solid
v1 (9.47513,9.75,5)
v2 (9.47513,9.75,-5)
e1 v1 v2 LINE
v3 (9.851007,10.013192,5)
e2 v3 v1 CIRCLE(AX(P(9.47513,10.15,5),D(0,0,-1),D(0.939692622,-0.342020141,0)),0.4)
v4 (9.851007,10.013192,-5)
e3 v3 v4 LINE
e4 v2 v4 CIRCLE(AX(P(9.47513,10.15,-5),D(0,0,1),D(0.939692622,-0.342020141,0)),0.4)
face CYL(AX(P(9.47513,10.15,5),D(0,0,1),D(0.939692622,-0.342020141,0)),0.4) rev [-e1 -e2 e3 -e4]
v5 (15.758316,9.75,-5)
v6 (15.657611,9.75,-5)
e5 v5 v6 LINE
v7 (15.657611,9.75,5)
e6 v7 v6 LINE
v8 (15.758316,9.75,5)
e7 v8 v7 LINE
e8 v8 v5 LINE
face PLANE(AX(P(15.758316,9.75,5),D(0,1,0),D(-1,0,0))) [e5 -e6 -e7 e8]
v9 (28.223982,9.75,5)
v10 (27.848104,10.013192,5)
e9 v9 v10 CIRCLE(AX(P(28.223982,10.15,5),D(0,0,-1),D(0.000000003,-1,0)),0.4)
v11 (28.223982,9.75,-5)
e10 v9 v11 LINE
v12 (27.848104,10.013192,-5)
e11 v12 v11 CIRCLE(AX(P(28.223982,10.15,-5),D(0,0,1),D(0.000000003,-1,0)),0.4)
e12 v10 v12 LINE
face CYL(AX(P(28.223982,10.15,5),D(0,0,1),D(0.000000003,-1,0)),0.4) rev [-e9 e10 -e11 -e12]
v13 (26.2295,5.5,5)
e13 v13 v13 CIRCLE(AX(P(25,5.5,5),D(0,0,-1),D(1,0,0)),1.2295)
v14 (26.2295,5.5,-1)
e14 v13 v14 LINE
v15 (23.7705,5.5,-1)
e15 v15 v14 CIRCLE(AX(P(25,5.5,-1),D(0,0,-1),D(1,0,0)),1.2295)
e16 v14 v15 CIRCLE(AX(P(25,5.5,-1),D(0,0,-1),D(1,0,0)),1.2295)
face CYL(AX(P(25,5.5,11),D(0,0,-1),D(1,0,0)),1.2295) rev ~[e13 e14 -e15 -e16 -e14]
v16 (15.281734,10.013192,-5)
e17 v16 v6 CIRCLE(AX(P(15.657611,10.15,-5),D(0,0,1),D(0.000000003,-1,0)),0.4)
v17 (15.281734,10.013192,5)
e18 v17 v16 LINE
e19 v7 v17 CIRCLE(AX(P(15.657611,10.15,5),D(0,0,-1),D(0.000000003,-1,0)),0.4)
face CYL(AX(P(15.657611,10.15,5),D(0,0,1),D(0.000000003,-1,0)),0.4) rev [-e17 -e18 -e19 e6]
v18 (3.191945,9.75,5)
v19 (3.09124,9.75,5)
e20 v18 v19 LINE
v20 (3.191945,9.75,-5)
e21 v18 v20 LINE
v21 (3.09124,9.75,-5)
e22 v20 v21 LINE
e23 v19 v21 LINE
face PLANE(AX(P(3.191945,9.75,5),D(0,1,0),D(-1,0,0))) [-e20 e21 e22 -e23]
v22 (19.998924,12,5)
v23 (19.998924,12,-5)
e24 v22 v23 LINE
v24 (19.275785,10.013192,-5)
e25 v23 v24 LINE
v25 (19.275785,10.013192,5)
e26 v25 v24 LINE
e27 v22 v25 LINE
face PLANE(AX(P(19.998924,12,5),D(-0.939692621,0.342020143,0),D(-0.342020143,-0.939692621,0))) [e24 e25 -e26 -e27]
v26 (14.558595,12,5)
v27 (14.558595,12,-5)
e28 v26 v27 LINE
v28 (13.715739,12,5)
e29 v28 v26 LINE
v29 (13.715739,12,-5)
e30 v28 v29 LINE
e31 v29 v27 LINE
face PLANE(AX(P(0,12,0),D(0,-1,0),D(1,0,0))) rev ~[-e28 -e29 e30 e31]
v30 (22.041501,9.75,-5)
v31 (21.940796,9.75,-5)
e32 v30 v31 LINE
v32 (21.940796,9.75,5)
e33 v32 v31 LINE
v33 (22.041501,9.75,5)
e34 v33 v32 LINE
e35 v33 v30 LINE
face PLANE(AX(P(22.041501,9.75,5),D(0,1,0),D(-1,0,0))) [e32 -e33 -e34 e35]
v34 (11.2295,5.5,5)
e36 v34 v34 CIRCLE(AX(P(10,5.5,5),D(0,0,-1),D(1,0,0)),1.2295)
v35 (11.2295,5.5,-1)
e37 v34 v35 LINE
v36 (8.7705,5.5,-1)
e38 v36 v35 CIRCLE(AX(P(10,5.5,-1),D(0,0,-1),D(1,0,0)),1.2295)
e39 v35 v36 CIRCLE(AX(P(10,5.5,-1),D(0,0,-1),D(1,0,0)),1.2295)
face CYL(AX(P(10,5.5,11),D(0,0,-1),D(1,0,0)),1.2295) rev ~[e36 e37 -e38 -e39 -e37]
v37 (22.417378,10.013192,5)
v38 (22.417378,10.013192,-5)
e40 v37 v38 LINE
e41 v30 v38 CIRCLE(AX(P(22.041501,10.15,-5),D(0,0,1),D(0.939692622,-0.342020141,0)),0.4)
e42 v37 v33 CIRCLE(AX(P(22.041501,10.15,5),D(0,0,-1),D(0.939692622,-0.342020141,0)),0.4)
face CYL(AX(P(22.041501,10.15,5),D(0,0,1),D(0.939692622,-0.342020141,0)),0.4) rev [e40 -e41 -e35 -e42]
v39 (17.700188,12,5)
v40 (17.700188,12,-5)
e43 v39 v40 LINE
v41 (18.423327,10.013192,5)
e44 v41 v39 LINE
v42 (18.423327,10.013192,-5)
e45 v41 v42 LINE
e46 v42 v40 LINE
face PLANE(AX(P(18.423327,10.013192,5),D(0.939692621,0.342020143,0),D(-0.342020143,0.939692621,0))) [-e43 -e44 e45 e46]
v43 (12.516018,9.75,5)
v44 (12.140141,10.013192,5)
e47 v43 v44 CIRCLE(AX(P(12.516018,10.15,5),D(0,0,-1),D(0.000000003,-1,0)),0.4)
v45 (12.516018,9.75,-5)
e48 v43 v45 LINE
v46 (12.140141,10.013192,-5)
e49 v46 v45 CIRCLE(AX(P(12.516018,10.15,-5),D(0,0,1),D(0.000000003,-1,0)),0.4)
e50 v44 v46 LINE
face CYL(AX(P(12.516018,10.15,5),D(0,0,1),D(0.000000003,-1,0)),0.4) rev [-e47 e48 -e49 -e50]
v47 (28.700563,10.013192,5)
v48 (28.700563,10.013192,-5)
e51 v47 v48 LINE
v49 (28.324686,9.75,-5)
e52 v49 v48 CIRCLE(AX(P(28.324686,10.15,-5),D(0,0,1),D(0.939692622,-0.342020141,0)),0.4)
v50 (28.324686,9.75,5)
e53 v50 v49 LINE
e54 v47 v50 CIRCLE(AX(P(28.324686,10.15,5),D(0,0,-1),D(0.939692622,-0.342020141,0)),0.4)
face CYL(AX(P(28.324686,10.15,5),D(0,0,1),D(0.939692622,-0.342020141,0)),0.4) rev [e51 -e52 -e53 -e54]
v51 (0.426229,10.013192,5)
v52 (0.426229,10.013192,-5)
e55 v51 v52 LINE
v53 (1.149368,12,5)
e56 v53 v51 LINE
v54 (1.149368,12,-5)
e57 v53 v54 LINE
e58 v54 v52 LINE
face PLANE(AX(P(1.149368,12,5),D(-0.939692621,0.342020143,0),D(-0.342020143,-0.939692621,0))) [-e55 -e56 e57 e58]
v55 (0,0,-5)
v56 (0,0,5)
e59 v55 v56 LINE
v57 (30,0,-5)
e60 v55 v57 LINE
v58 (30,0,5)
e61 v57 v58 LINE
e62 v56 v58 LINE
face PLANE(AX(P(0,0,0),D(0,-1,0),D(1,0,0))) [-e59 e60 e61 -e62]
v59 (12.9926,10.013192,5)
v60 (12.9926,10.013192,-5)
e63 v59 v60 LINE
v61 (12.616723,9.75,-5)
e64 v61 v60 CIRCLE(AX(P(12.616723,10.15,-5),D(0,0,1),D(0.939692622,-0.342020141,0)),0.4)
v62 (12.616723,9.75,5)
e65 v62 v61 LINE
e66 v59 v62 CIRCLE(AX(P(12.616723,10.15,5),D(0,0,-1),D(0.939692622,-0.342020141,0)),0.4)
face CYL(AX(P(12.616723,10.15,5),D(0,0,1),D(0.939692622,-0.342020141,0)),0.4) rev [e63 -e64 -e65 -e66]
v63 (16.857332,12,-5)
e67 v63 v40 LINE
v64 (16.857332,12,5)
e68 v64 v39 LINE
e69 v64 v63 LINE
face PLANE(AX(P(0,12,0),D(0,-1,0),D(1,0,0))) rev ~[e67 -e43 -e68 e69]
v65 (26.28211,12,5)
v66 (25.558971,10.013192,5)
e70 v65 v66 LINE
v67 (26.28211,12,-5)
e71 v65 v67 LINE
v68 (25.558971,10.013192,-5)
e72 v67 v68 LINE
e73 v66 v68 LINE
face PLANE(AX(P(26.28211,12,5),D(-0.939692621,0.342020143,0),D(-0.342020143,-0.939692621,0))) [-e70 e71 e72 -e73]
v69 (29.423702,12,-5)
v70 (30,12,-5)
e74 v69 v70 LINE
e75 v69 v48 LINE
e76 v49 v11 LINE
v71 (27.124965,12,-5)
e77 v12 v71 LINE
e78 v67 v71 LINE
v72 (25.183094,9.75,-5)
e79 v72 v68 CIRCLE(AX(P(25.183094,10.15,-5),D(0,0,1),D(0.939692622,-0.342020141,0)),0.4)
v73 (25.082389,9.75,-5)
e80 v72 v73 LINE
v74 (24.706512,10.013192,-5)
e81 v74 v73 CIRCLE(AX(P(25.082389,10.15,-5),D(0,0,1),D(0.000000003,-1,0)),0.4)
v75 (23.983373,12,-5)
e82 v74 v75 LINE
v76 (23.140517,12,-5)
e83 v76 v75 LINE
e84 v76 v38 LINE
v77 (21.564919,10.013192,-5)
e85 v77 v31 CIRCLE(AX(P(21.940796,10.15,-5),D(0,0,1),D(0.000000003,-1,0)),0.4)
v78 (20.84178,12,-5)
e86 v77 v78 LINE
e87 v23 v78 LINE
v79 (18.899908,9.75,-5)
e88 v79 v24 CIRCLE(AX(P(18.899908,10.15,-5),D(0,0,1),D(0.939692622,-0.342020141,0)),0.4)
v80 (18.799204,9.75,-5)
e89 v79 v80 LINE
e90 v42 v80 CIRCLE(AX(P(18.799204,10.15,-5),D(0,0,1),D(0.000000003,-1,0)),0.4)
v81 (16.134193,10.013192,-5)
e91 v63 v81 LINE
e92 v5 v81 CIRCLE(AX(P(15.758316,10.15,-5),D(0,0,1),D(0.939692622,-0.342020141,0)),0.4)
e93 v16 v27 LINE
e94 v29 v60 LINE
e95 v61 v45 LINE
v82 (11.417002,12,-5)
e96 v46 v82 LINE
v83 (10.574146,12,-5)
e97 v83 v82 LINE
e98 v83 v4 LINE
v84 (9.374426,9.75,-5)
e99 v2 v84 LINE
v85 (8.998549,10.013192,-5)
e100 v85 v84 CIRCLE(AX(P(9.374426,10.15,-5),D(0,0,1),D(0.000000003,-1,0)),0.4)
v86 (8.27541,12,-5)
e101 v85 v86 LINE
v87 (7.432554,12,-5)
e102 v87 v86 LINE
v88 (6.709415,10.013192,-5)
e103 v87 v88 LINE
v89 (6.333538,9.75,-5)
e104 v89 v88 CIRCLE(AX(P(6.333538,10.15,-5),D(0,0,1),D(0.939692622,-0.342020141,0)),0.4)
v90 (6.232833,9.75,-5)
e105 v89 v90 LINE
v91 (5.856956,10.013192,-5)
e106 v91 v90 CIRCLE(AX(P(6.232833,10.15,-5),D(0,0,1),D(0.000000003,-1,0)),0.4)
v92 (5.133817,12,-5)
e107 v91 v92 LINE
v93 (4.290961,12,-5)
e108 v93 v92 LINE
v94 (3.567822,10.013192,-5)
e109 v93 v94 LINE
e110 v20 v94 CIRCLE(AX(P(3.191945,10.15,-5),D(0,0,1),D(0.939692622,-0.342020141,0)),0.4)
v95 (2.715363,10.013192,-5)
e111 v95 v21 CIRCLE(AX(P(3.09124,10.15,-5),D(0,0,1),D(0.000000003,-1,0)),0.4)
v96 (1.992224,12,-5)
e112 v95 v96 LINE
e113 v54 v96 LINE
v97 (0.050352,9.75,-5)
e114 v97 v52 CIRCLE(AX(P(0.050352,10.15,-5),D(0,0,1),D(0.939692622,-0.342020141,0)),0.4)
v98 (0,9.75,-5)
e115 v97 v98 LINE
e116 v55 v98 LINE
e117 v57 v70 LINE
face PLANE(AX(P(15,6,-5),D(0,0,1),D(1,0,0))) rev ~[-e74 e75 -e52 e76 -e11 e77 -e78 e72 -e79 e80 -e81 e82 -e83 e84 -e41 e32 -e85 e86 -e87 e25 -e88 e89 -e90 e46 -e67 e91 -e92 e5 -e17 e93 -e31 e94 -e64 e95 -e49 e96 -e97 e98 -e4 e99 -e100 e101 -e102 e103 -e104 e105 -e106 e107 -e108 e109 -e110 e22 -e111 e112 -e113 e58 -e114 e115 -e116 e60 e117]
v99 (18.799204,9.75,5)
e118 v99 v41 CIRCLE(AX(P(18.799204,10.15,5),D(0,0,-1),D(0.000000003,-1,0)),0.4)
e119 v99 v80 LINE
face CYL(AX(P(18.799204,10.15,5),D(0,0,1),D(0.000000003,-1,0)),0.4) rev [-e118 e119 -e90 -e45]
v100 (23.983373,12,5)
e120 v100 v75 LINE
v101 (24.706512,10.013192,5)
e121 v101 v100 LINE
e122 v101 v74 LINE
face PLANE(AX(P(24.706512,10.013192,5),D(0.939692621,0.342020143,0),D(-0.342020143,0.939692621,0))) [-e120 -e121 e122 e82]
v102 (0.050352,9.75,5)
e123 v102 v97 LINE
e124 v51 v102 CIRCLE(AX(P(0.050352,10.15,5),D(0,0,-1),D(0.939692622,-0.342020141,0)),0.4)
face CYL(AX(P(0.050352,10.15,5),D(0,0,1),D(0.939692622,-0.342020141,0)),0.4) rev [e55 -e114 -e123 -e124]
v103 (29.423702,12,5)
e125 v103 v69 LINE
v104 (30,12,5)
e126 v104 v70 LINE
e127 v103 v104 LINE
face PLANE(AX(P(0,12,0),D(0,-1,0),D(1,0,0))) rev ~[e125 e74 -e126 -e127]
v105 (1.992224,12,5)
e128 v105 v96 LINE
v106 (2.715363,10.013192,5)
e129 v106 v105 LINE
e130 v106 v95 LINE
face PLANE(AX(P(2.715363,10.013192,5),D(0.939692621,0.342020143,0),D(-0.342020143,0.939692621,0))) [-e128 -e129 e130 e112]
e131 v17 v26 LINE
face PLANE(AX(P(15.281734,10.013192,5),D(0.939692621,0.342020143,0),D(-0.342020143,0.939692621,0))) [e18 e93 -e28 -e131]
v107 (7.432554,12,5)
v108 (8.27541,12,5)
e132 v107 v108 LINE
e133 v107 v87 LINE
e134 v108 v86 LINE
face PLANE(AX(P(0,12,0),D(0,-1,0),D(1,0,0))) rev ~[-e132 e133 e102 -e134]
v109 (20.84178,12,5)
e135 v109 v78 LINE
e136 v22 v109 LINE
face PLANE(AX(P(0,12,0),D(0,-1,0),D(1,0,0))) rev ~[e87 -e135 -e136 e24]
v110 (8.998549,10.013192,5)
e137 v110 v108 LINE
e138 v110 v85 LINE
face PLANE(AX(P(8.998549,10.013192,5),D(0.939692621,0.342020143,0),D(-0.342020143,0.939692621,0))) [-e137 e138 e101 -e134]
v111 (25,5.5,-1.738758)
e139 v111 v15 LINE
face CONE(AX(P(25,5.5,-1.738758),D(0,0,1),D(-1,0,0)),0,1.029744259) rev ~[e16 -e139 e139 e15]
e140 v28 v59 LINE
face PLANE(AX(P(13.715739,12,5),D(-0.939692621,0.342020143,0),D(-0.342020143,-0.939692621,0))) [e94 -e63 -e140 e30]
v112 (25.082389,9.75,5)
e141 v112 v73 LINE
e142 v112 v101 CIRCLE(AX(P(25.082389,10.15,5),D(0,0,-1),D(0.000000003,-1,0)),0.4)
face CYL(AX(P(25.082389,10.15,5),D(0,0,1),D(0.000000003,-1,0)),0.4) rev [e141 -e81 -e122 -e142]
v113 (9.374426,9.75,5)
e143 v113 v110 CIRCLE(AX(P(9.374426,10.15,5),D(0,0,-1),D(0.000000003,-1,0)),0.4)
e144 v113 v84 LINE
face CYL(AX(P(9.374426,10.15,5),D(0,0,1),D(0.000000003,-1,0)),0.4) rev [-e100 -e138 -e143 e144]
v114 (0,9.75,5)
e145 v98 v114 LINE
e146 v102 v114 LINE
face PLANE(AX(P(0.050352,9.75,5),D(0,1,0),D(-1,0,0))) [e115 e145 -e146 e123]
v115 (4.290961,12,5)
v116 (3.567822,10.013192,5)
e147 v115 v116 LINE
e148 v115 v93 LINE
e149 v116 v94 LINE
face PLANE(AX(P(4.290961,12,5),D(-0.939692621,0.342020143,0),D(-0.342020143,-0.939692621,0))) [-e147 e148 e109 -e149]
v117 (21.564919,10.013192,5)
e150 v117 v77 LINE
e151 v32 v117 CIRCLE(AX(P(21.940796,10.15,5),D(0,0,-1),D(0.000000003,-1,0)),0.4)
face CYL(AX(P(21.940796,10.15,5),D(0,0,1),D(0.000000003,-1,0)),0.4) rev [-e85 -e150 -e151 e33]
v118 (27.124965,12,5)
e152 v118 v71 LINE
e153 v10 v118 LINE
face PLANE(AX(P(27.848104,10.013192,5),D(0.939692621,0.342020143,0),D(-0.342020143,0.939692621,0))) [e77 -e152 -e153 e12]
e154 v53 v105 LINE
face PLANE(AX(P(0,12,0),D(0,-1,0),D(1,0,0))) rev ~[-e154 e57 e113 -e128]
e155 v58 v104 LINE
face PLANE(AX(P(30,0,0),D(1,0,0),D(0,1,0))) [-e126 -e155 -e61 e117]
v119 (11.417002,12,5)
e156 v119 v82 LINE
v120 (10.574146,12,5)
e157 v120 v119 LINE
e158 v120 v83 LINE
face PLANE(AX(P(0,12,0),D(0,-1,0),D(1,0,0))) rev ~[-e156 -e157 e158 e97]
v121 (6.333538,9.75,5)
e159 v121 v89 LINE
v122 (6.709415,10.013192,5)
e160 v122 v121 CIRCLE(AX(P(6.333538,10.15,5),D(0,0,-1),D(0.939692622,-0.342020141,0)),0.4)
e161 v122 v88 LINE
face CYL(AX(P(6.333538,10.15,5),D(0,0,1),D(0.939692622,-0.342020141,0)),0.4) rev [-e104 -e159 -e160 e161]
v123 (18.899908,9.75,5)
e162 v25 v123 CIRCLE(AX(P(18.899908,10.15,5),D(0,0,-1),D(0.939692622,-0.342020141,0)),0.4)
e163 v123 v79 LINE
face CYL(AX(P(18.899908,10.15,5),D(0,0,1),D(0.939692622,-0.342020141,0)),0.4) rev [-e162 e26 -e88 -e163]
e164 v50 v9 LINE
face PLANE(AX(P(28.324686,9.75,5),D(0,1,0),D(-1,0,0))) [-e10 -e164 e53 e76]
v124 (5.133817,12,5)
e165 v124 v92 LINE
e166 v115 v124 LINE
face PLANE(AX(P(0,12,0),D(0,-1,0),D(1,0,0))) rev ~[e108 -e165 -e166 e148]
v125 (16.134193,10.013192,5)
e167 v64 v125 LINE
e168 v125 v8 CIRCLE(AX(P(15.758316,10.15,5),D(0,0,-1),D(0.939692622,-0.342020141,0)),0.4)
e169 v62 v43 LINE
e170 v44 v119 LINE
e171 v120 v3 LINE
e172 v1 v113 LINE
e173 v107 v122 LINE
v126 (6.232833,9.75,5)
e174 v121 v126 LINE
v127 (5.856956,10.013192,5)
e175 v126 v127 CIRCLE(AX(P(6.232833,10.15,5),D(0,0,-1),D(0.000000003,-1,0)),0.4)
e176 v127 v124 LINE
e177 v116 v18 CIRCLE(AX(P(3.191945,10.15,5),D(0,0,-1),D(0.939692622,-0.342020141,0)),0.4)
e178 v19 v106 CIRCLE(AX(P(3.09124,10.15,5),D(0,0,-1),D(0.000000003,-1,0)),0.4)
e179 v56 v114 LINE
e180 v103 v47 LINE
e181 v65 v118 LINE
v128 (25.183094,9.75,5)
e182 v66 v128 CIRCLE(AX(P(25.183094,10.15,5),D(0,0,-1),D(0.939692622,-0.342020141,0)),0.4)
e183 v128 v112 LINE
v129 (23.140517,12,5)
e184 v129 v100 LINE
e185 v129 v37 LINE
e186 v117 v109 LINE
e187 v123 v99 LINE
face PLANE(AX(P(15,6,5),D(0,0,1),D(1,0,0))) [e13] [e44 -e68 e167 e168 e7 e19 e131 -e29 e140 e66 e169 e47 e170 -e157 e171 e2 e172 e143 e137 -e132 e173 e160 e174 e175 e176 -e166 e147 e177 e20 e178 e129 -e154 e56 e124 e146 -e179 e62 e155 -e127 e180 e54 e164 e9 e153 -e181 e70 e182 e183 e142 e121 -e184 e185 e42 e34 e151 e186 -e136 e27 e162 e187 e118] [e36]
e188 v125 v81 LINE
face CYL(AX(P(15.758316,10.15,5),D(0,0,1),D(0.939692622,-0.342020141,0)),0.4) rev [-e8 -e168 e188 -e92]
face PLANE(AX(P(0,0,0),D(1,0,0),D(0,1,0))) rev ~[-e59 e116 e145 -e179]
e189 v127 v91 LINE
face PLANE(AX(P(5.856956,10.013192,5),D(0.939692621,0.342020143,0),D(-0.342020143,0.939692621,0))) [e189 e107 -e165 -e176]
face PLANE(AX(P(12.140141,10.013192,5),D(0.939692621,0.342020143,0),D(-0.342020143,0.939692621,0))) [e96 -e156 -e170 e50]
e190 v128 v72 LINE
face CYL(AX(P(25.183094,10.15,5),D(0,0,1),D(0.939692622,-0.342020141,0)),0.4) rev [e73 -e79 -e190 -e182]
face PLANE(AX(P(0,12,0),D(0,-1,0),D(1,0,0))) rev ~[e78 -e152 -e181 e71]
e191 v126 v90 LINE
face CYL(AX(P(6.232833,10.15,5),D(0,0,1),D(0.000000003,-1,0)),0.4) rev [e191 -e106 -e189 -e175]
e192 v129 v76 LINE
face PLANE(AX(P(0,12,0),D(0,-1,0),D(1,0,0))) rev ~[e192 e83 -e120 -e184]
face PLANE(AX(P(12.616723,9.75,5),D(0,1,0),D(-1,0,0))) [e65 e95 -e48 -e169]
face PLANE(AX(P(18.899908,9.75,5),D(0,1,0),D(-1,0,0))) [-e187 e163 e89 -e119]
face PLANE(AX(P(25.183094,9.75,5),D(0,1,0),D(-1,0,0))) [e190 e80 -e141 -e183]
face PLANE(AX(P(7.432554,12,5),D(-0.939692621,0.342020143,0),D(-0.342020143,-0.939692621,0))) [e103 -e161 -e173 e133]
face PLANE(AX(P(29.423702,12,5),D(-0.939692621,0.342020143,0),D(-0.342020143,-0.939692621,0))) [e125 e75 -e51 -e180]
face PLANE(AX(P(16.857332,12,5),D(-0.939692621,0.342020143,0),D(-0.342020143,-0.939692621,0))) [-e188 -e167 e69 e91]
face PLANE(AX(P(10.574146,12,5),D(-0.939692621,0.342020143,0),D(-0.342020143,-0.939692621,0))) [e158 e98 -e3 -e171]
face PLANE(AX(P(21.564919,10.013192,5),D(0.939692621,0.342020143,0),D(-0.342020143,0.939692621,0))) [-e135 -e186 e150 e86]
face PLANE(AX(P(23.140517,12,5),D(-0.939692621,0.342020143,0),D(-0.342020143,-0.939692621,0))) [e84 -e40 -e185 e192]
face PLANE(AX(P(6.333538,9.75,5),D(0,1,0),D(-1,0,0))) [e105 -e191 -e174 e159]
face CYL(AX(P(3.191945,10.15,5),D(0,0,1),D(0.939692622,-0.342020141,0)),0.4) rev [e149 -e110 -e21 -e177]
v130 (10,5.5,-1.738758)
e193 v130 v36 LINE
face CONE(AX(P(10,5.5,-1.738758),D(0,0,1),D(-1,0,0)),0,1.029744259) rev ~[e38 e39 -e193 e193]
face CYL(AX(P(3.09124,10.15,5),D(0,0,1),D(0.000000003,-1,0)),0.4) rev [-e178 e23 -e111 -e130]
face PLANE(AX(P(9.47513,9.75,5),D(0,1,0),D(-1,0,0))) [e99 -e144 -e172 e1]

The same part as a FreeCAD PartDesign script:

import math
import FreeCAD as App
import Part
import Sketcher
Q = App.Units.Quantity

doc = App.newDocument("Part")
body = doc.addObject("PartDesign::Body", "Body")

# Sketch on XY plane
sketch1 = body.newObject("Sketcher::SketchObject", "Sketch")
sketch1.AttachmentSupport = (doc.getObject("XY_Plane"), [""])
sketch1.MapMode = "FlatFace"
sketch1.addGeometry([
    Part.LineSegment(App.Vector(0, 12, 0), App.Vector(0, 0, 0)),
    Part.LineSegment(App.Vector(0, 0, 0), App.Vector(30, 0, 0)),
    Part.LineSegment(App.Vector(30, 0, 0), App.Vector(30, 12, 0)),
    Part.LineSegment(App.Vector(30, 12, 0), App.Vector(0, 12, 0)),
], False)
sketch1.addConstraint([
    Sketcher.Constraint("Coincident", 0, 2, 1, 1),
    Sketcher.Constraint("Coincident", 1, 2, 2, 1),
    Sketcher.Constraint("Coincident", 2, 2, 3, 1),
    Sketcher.Constraint("Coincident", 3, 2, 0, 1),
    Sketcher.Constraint("Vertical", 0),
    Sketcher.Constraint("Horizontal", 1),
    Sketcher.Constraint("Vertical", 2),
    Sketcher.Constraint("Horizontal", 3),
    Sketcher.Constraint("Coincident", 0, 2, -1, 1),
    Sketcher.Constraint("DistanceX", 1, 1, 1, 2, 30.0),
    Sketcher.Constraint("DistanceY", 0, 2, 0, 1, 12.0),
])
pad1 = body.newObject("PartDesign::Pad", "Pad")
pad1.Profile = sketch1
pad1.Length = 10
pad1.Midplane = True

# Sketch on XY plane
sketch2 = body.newObject("Sketcher::SketchObject", "Sketch001")
sketch2.AttachmentSupport = (doc.getObject("XY_Plane"), [""])
sketch2.MapMode = "FlatFace"
sketch2.AttachmentOffset = App.Placement(App.Vector(0, 0, 5), App.Rotation())
sketch2.addGeometry([
    Part.LineSegment(App.Vector(1.15, 12, 0), App.Vector(-1.15, 12, 0)),  # 0
    Part.LineSegment(App.Vector(-1.15, 12, 0), App.Vector(-0.43, 10.01, 0)),  # 1
    Part.ArcOfCircle(Part.Circle(App.Vector(-0.05, 10.15, 0), App.Vector(0, 0, 1), 0.4), math.radians(-160), math.radians(-90)),  # 2
    Part.LineSegment(App.Vector(-0.05, 9.75, 0), App.Vector(0.05, 9.75, 0)),  # 3
    Part.ArcOfCircle(Part.Circle(App.Vector(0.05, 10.15, 0), App.Vector(0, 0, 1), 0.4), math.radians(-90), math.radians(-20)),  # 4
    Part.LineSegment(App.Vector(0.43, 10.01, 0), App.Vector(1.15, 12, 0)),  # 5
], False)
sketch2.addConstraint([
    Sketcher.Constraint("Coincident", 0, 2, 1, 1),
    Sketcher.Constraint("Tangent", 1, 2, 2, 1),
    Sketcher.Constraint("Tangent", 2, 2, 3, 1),
    Sketcher.Constraint("Tangent", 3, 2, 4, 1),
    Sketcher.Constraint("Tangent", 4, 2, 5, 1),
    Sketcher.Constraint("Coincident", 5, 2, 0, 1),
    Sketcher.Constraint("Horizontal", 0),
    Sketcher.Constraint("Horizontal", 3),
    Sketcher.Constraint("Equal", 2, 4),
    Sketcher.Constraint("Symmetric", 1, 2, 4, 2, -2),
    Sketcher.Constraint("Radius", 2, 0.4),
    Sketcher.Constraint("Angle", 1, Q("-70 deg")),
    Sketcher.Constraint("DistanceY", -1, 1, 0, 2, 12.0),
    Sketcher.Constraint("DistanceY", -1, 1, 2, 3, 10.15),
    Sketcher.Constraint("DistanceX", 0, 2, 0, 1, 2.298737),
])
pocket1 = body.newObject("PartDesign::Pocket", "Pocket")
pocket1.Profile = sketch2
pocket1.Type = "ThroughAll"
doc.recompute()

linearpattern = body.newObject("PartDesign::LinearPattern", "LinearPattern")
linearpattern.Originals = [pocket1]
linearpattern.Direction = (doc.getObject("X_Axis"), [""])
linearpattern.Mode = "offset"
linearpattern.Offset = 3.141593
linearpattern.Occurrences = 10
body.Tip = linearpattern

# Sketch on XY plane
sketch3 = body.newObject("Sketcher::SketchObject", "Sketch002")
sketch3.AttachmentSupport = (doc.getObject("XY_Plane"), [""])
sketch3.MapMode = "FlatFace"
sketch3.AttachmentOffset = App.Placement(App.Vector(0, 0, 5), App.Rotation())
sketch3.addGeometry(Part.Circle(App.Vector(10, 5.5, 0), App.Vector(0, 0, 1), 1.2), False)
sketch3.addConstraint([
    Sketcher.Constraint("Diameter", 0, 2.459),
    Sketcher.Constraint("DistanceX", -1, 1, 0, 3, 10.0),
    Sketcher.Constraint("DistanceY", -1, 1, 0, 3, 5.5),
])
doc.recompute()
hole = body.newObject("PartDesign::Hole", "Hole")
hole.Profile = sketch3
hole.ThreadType = "None"
hole.Diameter = 2.459
hole.DepthType = "Dimension"
hole.Depth = 6
hole.DrillPoint = "Angled"
hole.DrillPointAngle = 118

# Sketch on XY plane
sketch4 = body.newObject("Sketcher::SketchObject", "Sketch003")
sketch4.AttachmentSupport = (doc.getObject("XY_Plane"), [""])
sketch4.MapMode = "FlatFace"
sketch4.AttachmentOffset = App.Placement(App.Vector(0, 0, 5), App.Rotation())
sketch4.addGeometry(Part.Circle(App.Vector(25, 5.5, 0), App.Vector(0, 0, 1), 1.2), False)
sketch4.addConstraint([
    Sketcher.Constraint("Diameter", 0, 2.459),
    Sketcher.Constraint("DistanceX", -1, 1, 0, 3, 25.0),
    Sketcher.Constraint("DistanceY", -1, 1, 0, 3, 5.5),
])
doc.recompute()
hole2 = body.newObject("PartDesign::Hole", "Hole001")
hole2.Profile = sketch4
hole2.ThreadType = "None"
hole2.Diameter = 2.459
hole2.DepthType = "Dimension"
hole2.Depth = 6
hole2.DrillPoint = "Angled"
hole2.DrillPointAngle = 118

doc.recompute()
